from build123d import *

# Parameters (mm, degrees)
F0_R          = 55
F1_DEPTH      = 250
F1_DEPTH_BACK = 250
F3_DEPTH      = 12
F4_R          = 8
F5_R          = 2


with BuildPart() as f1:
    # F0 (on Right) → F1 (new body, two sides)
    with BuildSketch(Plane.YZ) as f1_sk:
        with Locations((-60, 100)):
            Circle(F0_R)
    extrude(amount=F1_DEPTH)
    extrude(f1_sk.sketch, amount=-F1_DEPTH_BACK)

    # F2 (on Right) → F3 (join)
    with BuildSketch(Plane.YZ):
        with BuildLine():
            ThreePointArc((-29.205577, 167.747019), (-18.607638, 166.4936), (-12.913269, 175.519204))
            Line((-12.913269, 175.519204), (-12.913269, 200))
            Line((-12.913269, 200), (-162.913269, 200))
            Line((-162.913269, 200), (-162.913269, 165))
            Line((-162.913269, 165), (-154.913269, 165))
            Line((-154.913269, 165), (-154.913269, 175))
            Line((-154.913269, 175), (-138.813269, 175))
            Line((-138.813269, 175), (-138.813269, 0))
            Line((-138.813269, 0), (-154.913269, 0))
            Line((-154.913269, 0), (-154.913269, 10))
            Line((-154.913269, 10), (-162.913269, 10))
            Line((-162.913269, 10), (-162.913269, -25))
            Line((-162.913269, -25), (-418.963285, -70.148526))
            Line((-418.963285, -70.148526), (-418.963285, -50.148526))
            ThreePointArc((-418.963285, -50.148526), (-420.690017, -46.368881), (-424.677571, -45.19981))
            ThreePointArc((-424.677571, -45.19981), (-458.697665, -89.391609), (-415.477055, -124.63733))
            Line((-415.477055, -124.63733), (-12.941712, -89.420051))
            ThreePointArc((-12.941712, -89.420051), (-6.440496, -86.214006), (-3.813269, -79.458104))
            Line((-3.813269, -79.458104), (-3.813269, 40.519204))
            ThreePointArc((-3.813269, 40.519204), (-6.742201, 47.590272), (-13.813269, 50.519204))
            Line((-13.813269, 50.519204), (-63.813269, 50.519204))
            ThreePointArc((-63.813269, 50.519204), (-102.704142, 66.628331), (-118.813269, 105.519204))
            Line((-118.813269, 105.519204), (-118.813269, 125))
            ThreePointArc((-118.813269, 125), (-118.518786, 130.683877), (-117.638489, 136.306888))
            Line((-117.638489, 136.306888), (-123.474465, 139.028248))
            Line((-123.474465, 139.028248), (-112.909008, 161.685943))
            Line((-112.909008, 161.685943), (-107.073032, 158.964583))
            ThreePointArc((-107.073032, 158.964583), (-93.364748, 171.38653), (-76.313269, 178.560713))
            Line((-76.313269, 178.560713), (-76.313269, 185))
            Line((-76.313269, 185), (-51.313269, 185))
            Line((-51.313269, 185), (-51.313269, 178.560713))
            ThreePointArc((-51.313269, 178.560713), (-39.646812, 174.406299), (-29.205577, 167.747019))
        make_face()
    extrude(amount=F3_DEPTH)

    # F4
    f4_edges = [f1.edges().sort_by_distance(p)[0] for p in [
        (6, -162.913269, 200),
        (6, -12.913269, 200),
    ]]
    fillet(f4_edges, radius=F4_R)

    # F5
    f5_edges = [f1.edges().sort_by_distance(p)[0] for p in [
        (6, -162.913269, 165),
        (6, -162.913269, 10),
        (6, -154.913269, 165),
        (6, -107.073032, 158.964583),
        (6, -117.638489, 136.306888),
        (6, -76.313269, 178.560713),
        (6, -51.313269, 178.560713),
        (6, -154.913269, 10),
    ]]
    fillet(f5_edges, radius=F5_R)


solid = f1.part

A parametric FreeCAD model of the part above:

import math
import FreeCAD as App
import Part
import Sketcher
from FreeCAD import Vector
Q = App.Units.Quantity


def edges_at(feature, points):
    """Names of the edges that pass closest to the given points."""
    edges = feature.Shape.Edges
    near = lambda p: min(range(len(edges)), key=lambda i: edges[i].distToShape(Part.Vertex(*p))[0])
    return sorted({f"Edge{near(p) + 1}" for p in points})

doc = App.newDocument("Part")
params = doc.addObject("Spreadsheet::Sheet", "Params")
for row, (alias, value) in enumerate([
    ("sketch1_diameter", "110 mm"),
    ("pad1_length", "250 mm"),
    ("pad1_length2", "250 mm"),
    ("sketch2_radius", "10.000001 mm"),
    ("sketch2_radius2", "4.999999 mm"),
    ("sketch2_radius3", "40 mm"),
    ("sketch2_radius4", "55 mm"),
    ("sketch2_width", "150 mm"),
    ("pad2_length", "12 mm"),
    ("fillet_radius", "8 mm"),
    ("fillet2_radius", "2 mm"),
], start=1):
    params.set(f"A{row}", alias)
    params.set(f"B{row}", "=" + value)
    params.setAlias(f"B{row}", alias)

body = doc.addObject("PartDesign::Body", "Body")

sketch1 = body.newObject("Sketcher::SketchObject", "Sketch")
sketch1.AttachmentSupport = (doc.getObject("YZ_Plane"), [""])
sketch1.MapMode = "FlatFace"
sketch1.addGeometry(Part.Circle(Vector(-60, 100, 0), Vector(0, 0, 1), 55), False)
sketch1.addConstraint([
    Sketcher.Constraint("Diameter", 0, Q("110 mm")),
    Sketcher.Constraint("DistanceX", 0, 3, -1, 1, Q("60 mm")),
    Sketcher.Constraint("DistanceY", -1, 1, 0, 3, Q("100 mm")),
])
sketch1.setExpression("Constraints[0]", "Params.sketch1_diameter")
pad1 = body.newObject("PartDesign::Pad", "Pad")
pad1.Profile = sketch1
pad1.Type = "TwoLengths"
pad1.setExpression("Length", "Params.pad1_length")
pad1.setExpression("Length2", "Params.pad1_length2")

sketch2 = body.newObject("Sketcher::SketchObject", "Sketch001")
sketch2.AttachmentSupport = (doc.getObject("YZ_Plane"), [""])
sketch2.MapMode = "FlatFace"
sketch2.addGeometry([
    Part.ArcOfCircle(Part.Circle(Vector(-22.91327, 175.519205, 0), Vector(0, 0, 1), 10.000001), math.radians(-128.993389), math.radians(-0.000006)),
    Part.LineSegment(Vector(-12.913269, 175.519204, 0), Vector(-12.913269, 200, 0)),
    Part.LineSegment(Vector(-12.913269, 200, 0), Vector(-162.913269, 200, 0)),
    Part.LineSegment(Vector(-162.913269, 200, 0), Vector(-162.913269, 165, 0)),
    Part.LineSegment(Vector(-162.913269, 165, 0), Vector(-154.913269, 165, 0)),
    Part.LineSegment(Vector(-154.913269, 165, 0), Vector(-154.913269, 175, 0)),
    Part.LineSegment(Vector(-154.913269, 175, 0), Vector(-138.813269, 175, 0)),
    Part.LineSegment(Vector(-138.813269, 175, 0), Vector(-138.813269, 0, 0)),
    Part.LineSegment(Vector(-138.813269, 0, 0), Vector(-154.913269, 0, 0)),
    Part.LineSegment(Vector(-154.913269, 0, 0), Vector(-154.913269, 10, 0)),
    Part.LineSegment(Vector(-154.913269, 10, 0), Vector(-162.913269, 10, 0)),
    Part.LineSegment(Vector(-162.913269, 10, 0), Vector(-162.913269, -25, 0)),
    Part.LineSegment(Vector(-162.913269, -25, 0), Vector(-418.963285, -70.148526, 0)),
    Part.LineSegment(Vector(-418.963285, -70.148526, 0), Vector(-418.963285, -50.148526, 0)),
    Part.ArcOfCircle(Part.Circle(Vector(-423.963284, -50.148526, 0), Vector(0, 0, 1), 4.999999), math.radians(-0.000003), math.radians(98.213224)),
    Part.ArcOfCircle(Part.Circle(Vector(-418.963285, -84.789542, 0), Vector(0, 0, 1), 40), math.radians(98.213211), math.radians(275)),
    Part.LineSegment(Vector(-415.477055, -124.63733, 0), Vector(-12.941712, -89.420051, 0)),
    Part.ArcOfCircle(Part.Circle(Vector(-13.81327, -79.458103, 0), Vector(0, 0, 1), 10.000001), math.radians(-84.999998), math.radians(-0.000005)),
    Part.LineSegment(Vector(-3.813269, -79.458104, 0), Vector(-3.813269, 40.519204, 0)),
    Part.ArcOfCircle(Part.Circle(Vector(-13.813268, 40.519205, 0), Vector(0, 0, 1), 9.999999), math.radians(-0.000004), math.radians(90.000004)),
    Part.LineSegment(Vector(-13.813269, 50.519204, 0), Vector(-63.813269, 50.519204, 0)),
    Part.ArcOfCircle(Part.Circle(Vector(-63.813269, 105.519204, 0), Vector(0, 0, 1), 55), math.radians(180), math.radians(270)),
    Part.LineSegment(Vector(-118.813269, 105.519204, 0), Vector(-118.813269, 125, 0)),
    Part.ArcOfCircle(Part.Circle(Vector(-63.813329, 125.000007, 0), Vector(0, 0, 1), 54.99994), math.radians(168.136554), math.radians(180.000008)),
    Part.LineSegment(Vector(-117.638489, 136.306888, 0), Vector(-123.474465, 139.028248, 0)),
    Part.LineSegment(Vector(-123.474465, 139.028248, 0), Vector(-112.909008, 161.685943, 0)),
    Part.LineSegment(Vector(-112.909008, 161.685943, 0), Vector(-107.073032, 158.964583, 0)),
    Part.ArcOfCircle(Part.Circle(Vector(-63.813277, 125.000012, 0), Vector(0, 0, 1), 54.999986), math.radians(103.136554), math.radians(141.863446)),
    Part.LineSegment(Vector(-76.313269, 178.560713, 0), Vector(-76.313269, 185, 0)),
    Part.LineSegment(Vector(-76.313269, 185, 0), Vector(-51.313269, 185, 0)),
    Part.LineSegment(Vector(-51.313269, 185, 0), Vector(-51.313269, 178.560713, 0)),
    Part.ArcOfCircle(Part.Circle(Vector(-63.813262, 125.000015, 0), Vector(0, 0, 1), 54.999983), math.radians(51.006604), math.radians(76.863445)),
], False)
sketch2.addConstraint([
    Sketcher.Constraint("Tangent", 0, 2, 1, 1),
    Sketcher.Constraint("Coincident", 1, 2, 2, 1),
    Sketcher.Constraint("Coincident", 2, 2, 3, 1),
    Sketcher.Constraint("Coincident", 3, 2, 4, 1),
    Sketcher.Constraint("Coincident", 4, 2, 5, 1),
    Sketcher.Constraint("Coincident", 5, 2, 6, 1),
    Sketcher.Constraint("Coincident", 6, 2, 7, 1),
    Sketcher.Constraint("Coincident", 7, 2, 8, 1),
    Sketcher.Constraint("Coincident", 8, 2, 9, 1),
    Sketcher.Constraint("Coincident", 9, 2, 10, 1),
    Sketcher.Constraint("Coincident", 10, 2, 11, 1),
    Sketcher.Constraint("Coincident", 11, 2, 12, 1),
    Sketcher.Constraint("Coincident", 12, 2, 13, 1),
    Sketcher.Constraint("Tangent", 13, 2, 14, 1),
    Sketcher.Constraint("Tangent", 14, 2, 15, 1),
    Sketcher.Constraint("Tangent", 15, 2, 16, 1),
    Sketcher.Constraint("Tangent", 16, 2, 17, 1),
    Sketcher.Constraint("Tangent", 17, 2, 18, 1),
    Sketcher.Constraint("Tangent", 18, 2, 19, 1),
    Sketcher.Constraint("Tangent", 19, 2, 20, 1),
    Sketcher.Constraint("Tangent", 20, 2, 21, 2),
    Sketcher.Constraint("Tangent", 21, 1, 22, 1),
    Sketcher.Constraint("Tangent", 22, 2, 23, 2),
    Sketcher.Constraint("Coincident", 23, 1, 24, 1),
    Sketcher.Constraint("Coincident", 24, 2, 25, 1),
    Sketcher.Constraint("Coincident", 25, 2, 26, 1),
    Sketcher.Constraint("Coincident", 26, 2, 27, 2),
    Sketcher.Constraint("Coincident", 27, 1, 28, 1),
    Sketcher.Constraint("Coincident", 28, 2, 29, 1),
    Sketcher.Constraint("Coincident", 29, 2, 30, 1),
    Sketcher.Constraint("Coincident", 30, 2, 31, 2),
    Sketcher.Constraint("Tangent", 31, 1, 0, 1),
    Sketcher.Constraint("Vertical", 1),
    Sketcher.Constraint("Horizontal", 2),
    Sketcher.Constraint("Vertical", 3),
    Sketcher.Constraint("Horizontal", 4),
    Sketcher.Constraint("Vertical", 5),
    Sketcher.Constraint("Horizontal", 6),
    Sketcher.Constraint("Vertical", 7),
    Sketcher.Constraint("Horizontal", 8),
    Sketcher.Constraint("Vertical", 9),
    Sketcher.Constraint("Horizontal", 10),
    Sketcher.Constraint("Vertical", 11),
    Sketcher.Constraint("Vertical", 13),
    Sketcher.Constraint("Vertical", 18),
    Sketcher.Constraint("Horizontal", 20),
    Sketcher.Constraint("Vertical", 22),
    Sketcher.Constraint("Vertical", 28),
    Sketcher.Constraint("Horizontal", 29),
    Sketcher.Constraint("Vertical", 30),
    Sketcher.Constraint("Equal", 0, 17),
    Sketcher.Constraint("Equal", 17, 19),
    Sketcher.Constraint("PointOnObject", 7, 2, -1),
    Sketcher.Constraint("Perpendicular", 24, 25),
    Sketcher.Constraint("Perpendicular", 25, 26),
    Sketcher.Constraint("Horizontal", 27, 1, 30, 2),
    Sketcher.Constraint("Vertical", 5, 2, 8, 2),
    Sketcher.Constraint("Vertical", 3, 2, 10, 2),
    Sketcher.Constraint("Vertical", 15, 3, 12, 2),
    Sketcher.Constraint("Equal", 5, 9),
    Sketcher.Constraint("Equal", 3, 11),
    Sketcher.Constraint("Equal", 24, 26),
    Sketcher.Constraint("Radius", 0, Q("10.000001 mm")),
    Sketcher.Constraint("Radius", 14, Q("4.999999 mm")),
    Sketcher.Constraint("Radius", 15, Q("40 mm")),
    Sketcher.Constraint("Radius", 21, Q("55 mm")),
    Sketcher.Constraint("DistanceX", 2, 2, 2, 1, Q("150 mm")),
    Sketcher.Constraint("DistanceX", 4, 1, 4, 2, Q("8 mm")),
    Sketcher.Constraint("DistanceX", 20, 2, 20, 1, Q("50 mm")),
    Sketcher.Constraint("DistanceX", 29, 1, 29, 2, Q("25 mm")),
    Sketcher.Constraint("DistanceY", 3, 2, 3, 1, Q("35 mm")),
    Sketcher.Constraint("DistanceY", 5, 1, 5, 2, Q("10 mm")),
    Sketcher.Constraint("DistanceY", 7, 2, 7, 1, Q("175 mm")),
    Sketcher.Constraint("DistanceY", 13, 1, 13, 2, Q("20 mm")),
    Sketcher.Constraint("Angle", 12, Q("-170 deg")),
    Sketcher.Constraint("Angle", 16, Q("5 deg")),
    Sketcher.Constraint("Angle", 24, Q("155.000002 deg")),
    Sketcher.Constraint("Distance", 12, Q("260 mm")),
    Sketcher.Constraint("Distance", 25, Q("25 mm")),
    Sketcher.Constraint("DistanceX", 6, 1, 6, 2, Q("16.1 mm")),
    Sketcher.Constraint("DistanceY", -1, 1, 22, 2, Q("125 mm")),
    Sketcher.Constraint("DistanceY", -1, 1, 28, 2, Q("185 mm")),
    Sketcher.Constraint("DistanceY", 19, 3, 0, 3, Q("135 mm")),
    Sketcher.Constraint("DistanceX", 7, 2, 21, 3, Q("75 mm")),
    Sketcher.Constraint("DistanceX", 27, 1, 0, 3, Q("53.399999 mm")),
    Sketcher.Constraint("Radius", 23, Q("54.99994 mm")),
    Sketcher.Constraint("Radius", 27, Q("54.999986 mm")),
    Sketcher.Constraint("Radius", 31, Q("54.999983 mm")),
    Sketcher.Constraint("DistanceY", 18, 1, 18, 2, Q("119.977308 mm")),
    Sketcher.Constraint("DistanceY", 27, 3, 27, 1, Q("53.560701 mm")),
    Sketcher.Constraint("DistanceY", 28, 1, 28, 2, Q("6.439287 mm")),
    Sketcher.Constraint("DistanceX", 0, 3, -1, 1, Q("22.91327 mm")),
    Sketcher.Constraint("DistanceX", 25, 2, -1, 1, Q("112.909008 mm")),
])
sketch2.setExpression("Constraints[62]", "Params.sketch2_radius")
sketch2.setExpression("Constraints[63]", "Params.sketch2_radius2")
sketch2.setExpression("Constraints[64]", "Params.sketch2_radius3")
sketch2.setExpression("Constraints[65]", "Params.sketch2_radius4")
sketch2.setExpression("Constraints[66]", "Params.sketch2_width")
pad2 = body.newObject("PartDesign::Pad", "Pad001")
pad2.Profile = sketch2
pad2.setExpression("Length", "Params.pad2_length")
doc.recompute()

fillet = body.newObject("PartDesign::Fillet", "Fillet")
fillet.Base = (pad2, edges_at(pad2, [(6, -162.913, 200), (6, -12.913, 200)]))
fillet.setExpression("Radius", "Params.fillet_radius")
doc.recompute()

fillet2 = body.newObject("PartDesign::Fillet", "Fillet001")
fillet2.Base = (fillet, edges_at(fillet, [
    (6, -162.913, 165),
    (6, -162.913, 10),
    (6, -154.913, 165),
    (6, -107.073, 158.965),
    (6, -117.638, 136.307),
    (6, -76.313, 178.561),
    (6, -51.313, 178.561),
    (6, -154.913, 10),
]))
fillet2.setExpression("Radius", "Params.fillet2_radius")

doc.recompute()
